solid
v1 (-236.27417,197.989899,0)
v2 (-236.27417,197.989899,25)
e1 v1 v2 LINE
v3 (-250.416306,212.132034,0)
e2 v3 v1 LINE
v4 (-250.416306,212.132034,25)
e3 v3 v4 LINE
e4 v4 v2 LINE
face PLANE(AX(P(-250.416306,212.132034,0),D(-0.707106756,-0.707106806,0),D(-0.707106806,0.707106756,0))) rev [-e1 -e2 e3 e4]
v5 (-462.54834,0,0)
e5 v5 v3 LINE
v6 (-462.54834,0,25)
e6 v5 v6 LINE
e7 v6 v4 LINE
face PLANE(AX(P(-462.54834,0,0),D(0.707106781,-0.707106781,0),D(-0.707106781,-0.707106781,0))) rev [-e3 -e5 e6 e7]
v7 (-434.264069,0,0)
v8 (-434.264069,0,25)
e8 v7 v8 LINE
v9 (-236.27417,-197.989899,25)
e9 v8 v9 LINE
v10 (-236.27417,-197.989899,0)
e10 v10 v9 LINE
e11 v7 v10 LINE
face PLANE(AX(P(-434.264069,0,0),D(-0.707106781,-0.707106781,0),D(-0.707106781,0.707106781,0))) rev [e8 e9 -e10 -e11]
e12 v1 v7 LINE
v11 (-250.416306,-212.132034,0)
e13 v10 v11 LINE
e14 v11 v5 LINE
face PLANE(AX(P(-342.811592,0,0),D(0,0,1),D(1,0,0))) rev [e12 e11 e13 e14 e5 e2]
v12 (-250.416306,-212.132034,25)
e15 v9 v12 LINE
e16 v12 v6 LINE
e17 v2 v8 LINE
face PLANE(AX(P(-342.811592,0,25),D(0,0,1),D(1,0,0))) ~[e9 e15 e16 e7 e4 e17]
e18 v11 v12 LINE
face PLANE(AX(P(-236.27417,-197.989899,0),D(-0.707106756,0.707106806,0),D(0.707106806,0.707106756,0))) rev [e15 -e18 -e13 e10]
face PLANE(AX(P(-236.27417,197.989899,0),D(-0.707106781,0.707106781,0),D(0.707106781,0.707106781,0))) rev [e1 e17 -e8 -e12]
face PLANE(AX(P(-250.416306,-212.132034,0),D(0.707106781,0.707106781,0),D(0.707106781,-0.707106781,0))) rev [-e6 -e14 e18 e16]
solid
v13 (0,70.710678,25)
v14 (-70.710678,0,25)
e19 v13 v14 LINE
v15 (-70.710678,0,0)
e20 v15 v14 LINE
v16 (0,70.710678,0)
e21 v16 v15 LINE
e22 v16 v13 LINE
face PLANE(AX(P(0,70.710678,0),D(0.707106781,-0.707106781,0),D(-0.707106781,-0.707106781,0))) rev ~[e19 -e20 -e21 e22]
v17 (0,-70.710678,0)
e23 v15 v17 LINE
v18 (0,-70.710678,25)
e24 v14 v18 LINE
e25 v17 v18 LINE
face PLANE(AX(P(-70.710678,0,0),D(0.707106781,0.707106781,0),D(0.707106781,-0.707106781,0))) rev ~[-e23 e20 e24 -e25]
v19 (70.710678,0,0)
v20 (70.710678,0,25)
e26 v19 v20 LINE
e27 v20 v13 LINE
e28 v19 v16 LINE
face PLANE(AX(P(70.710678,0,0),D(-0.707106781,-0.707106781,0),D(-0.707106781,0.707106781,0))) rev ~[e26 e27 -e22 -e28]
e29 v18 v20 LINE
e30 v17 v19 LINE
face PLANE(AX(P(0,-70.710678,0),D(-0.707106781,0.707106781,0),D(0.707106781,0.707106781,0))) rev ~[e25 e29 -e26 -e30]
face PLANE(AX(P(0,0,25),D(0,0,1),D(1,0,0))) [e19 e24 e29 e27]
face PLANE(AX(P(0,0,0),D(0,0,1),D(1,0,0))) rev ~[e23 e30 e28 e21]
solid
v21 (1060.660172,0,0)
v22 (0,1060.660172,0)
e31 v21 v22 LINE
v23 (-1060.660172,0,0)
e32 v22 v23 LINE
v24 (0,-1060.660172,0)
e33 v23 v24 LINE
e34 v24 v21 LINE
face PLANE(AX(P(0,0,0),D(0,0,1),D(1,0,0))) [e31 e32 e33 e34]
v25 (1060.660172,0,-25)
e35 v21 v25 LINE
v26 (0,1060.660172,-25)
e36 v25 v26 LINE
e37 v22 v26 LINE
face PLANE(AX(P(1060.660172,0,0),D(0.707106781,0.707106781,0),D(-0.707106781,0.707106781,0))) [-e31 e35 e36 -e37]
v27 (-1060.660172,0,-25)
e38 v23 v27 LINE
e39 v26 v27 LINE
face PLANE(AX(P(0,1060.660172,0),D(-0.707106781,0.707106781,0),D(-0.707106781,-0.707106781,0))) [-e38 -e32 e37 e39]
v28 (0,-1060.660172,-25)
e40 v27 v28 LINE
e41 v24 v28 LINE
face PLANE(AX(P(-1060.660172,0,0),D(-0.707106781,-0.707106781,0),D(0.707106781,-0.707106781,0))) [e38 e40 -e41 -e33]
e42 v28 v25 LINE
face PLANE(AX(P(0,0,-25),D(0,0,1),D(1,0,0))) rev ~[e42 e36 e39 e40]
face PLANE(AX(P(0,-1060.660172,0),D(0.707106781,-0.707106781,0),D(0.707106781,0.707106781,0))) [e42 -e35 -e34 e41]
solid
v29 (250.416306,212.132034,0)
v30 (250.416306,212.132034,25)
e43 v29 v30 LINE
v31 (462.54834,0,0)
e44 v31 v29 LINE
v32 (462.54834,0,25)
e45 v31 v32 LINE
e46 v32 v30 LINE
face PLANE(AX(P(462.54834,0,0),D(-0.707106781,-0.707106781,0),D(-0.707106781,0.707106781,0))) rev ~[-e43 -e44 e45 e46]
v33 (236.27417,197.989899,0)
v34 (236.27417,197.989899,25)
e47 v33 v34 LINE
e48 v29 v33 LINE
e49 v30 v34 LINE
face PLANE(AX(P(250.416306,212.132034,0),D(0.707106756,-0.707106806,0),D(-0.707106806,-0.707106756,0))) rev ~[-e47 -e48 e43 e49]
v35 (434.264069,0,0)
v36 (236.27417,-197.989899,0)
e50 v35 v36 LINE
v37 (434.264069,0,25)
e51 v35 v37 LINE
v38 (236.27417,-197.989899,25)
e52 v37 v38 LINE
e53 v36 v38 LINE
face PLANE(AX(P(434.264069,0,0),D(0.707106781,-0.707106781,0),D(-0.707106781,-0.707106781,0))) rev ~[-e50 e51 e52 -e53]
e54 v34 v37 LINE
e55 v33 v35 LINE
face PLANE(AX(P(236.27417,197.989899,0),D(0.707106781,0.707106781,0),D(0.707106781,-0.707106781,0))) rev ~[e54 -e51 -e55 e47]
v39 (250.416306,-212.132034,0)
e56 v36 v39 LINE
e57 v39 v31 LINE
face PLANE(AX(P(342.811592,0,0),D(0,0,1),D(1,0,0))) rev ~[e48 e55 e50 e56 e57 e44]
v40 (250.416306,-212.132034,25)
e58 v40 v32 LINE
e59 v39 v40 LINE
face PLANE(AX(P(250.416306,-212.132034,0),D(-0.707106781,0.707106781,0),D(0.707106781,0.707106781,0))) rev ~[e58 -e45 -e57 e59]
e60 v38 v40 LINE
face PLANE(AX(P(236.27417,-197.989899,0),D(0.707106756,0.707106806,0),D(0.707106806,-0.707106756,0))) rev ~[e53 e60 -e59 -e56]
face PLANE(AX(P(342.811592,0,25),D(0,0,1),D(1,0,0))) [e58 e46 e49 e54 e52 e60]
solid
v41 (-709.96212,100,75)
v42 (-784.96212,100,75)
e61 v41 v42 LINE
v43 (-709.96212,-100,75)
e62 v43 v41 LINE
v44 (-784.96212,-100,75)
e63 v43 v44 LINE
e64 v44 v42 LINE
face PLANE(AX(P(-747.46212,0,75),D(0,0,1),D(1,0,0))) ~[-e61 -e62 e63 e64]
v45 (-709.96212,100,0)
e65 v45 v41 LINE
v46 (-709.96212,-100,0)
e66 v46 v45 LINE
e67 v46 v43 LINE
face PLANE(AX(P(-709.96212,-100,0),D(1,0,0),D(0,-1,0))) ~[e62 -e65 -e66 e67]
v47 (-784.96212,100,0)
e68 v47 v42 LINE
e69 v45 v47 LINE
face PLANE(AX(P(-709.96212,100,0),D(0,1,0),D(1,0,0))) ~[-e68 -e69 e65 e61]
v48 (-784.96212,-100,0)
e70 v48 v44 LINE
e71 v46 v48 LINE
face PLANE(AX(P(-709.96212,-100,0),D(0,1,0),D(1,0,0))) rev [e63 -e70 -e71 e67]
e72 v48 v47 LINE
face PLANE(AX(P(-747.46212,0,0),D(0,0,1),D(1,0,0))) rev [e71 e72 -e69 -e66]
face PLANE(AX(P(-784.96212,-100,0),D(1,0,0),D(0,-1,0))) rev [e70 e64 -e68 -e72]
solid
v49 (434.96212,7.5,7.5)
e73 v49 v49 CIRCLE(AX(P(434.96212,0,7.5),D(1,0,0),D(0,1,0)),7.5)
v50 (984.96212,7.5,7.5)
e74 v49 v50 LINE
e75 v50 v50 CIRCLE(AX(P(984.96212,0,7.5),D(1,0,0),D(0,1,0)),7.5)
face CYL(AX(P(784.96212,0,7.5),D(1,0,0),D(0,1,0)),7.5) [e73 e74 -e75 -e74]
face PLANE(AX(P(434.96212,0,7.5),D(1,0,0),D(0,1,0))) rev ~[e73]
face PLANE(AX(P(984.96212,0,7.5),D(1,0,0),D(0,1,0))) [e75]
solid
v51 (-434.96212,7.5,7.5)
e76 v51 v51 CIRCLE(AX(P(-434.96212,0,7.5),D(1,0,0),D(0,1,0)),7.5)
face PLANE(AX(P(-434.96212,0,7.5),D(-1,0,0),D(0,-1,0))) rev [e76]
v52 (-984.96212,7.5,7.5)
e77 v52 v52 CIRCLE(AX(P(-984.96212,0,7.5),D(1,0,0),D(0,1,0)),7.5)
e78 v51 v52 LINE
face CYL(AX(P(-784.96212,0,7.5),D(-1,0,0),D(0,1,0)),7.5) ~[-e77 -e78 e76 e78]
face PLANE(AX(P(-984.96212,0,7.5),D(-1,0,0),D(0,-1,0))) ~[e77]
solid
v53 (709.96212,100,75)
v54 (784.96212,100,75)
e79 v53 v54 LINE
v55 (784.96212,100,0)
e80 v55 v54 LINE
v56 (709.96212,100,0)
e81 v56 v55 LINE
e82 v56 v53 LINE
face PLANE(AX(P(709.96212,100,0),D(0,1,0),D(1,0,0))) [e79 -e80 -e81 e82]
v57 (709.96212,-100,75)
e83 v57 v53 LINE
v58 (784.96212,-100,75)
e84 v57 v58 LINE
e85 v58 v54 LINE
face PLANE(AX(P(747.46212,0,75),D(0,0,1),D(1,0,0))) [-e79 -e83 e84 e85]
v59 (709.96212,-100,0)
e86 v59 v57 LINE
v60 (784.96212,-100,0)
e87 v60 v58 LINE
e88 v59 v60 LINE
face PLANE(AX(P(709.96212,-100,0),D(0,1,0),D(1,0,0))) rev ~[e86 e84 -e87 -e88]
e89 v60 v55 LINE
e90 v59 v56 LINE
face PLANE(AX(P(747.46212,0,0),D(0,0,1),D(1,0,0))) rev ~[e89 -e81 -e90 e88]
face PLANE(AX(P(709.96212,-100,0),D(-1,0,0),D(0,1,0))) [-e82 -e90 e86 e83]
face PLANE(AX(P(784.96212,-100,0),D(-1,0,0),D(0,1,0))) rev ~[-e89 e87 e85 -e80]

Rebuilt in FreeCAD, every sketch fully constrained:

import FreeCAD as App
import Part
import Sketcher
from FreeCAD import Vector

doc = App.newDocument("Part")
params = doc.addObject("Spreadsheet::Sheet", "Params")
for row, (alias, value) in enumerate([
    ("sketch1_length", "1500 mm"),
    ("pad1_length", "25 mm"),
    ("sketch2_width", "75 mm"),
    ("sketch2_height", "200 mm"),
    ("pad2_length", "75 mm"),
    ("sketch3_length", "20 mm"),
    ("sketch3_length2", "299.999999 mm"),
    ("pad3_length", "25 mm"),
    ("sketch4_diameter", "15 mm"),
    ("pad4_length", "200 mm"),
    ("pad4_length2", "350 mm"),
    ("sketch5_length", "100 mm"),
    ("pad5_length", "25 mm"),
], start=1):
    params.set(f"A{row}", alias)
    params.set(f"B{row}", "=" + value)
    params.setAlias(f"B{row}", alias)

body = doc.addObject("PartDesign::Body", "Body")

# Sketch on XY plane
sketch1 = doc.addObject("Sketcher::SketchObject", "Sketch")
body.addObject(sketch1)
sketch1.AttachmentSupport = (doc.XY_Plane, [""])
sketch1.MapMode = "FlatFace"
sketch1.addGeometry([
    Part.LineSegment(Vector(0, 1061, 0), Vector(-1061, 0, 0)),
    Part.LineSegment(Vector(-1061, 0, 0), Vector(0, -1061, 0)),
    Part.LineSegment(Vector(0, -1061, 0), Vector(1061, 0, 0)),
    Part.LineSegment(Vector(1061, 0, 0), Vector(0, 1061, 0)),
], False)
sketch1.addConstraint([
    Sketcher.Constraint("Coincident", 0, 2, 1, 1),
    Sketcher.Constraint("Coincident", 1, 2, 2, 1),
    Sketcher.Constraint("Coincident", 2, 2, 3, 1),
    Sketcher.Constraint("Coincident", 3, 2, 0, 1),
    Sketcher.Constraint("Symmetric", 0, 2, 2, 2, -1, 1),
    Sketcher.Constraint("Symmetric", 1, 2, 3, 2, -1, 1),
    Sketcher.Constraint("PointOnObject", 0, 2, -1),
    Sketcher.Constraint("PointOnObject", 1, 2, -2),
    Sketcher.Constraint("Perpendicular", 0, 1),
    Sketcher.Constraint("Distance", 0, 1500.0),
])
sketch1.setExpression("Constraints[9]", "Params.sketch1_length")
pad1 = doc.addObject("PartDesign::Pad", "Pad")
body.addObject(pad1)
pad1.Profile = sketch1
pad1.setExpression("Length", "Params.pad1_length")
pad1.Reversed = True
body2 = doc.addObject("PartDesign::Body", "Body001")

# Sketch on XY plane
sketch2 = doc.addObject("Sketcher::SketchObject", "Sketch001")
body2.addObject(sketch2)
sketch2.AttachmentSupport = (doc.getObject("XY_Plane001"), [""])
sketch2.MapMode = "FlatFace"
sketch2.addGeometry([
    Part.LineSegment(Vector(710, 100, 0), Vector(710, -100, 0)),
    Part.LineSegment(Vector(710, -100, 0), Vector(785, -100, 0)),
    Part.LineSegment(Vector(785, -100, 0), Vector(785, 100, 0)),
    Part.LineSegment(Vector(785, 100, 0), Vector(710, 100, 0)),
], False)
sketch2.addConstraint([
    Sketcher.Constraint("Coincident", 0, 2, 1, 1),
    Sketcher.Constraint("Coincident", 1, 2, 2, 1),
    Sketcher.Constraint("Coincident", 2, 2, 3, 1),
    Sketcher.Constraint("Coincident", 3, 2, 0, 1),
    Sketcher.Constraint("Vertical", 0),
    Sketcher.Constraint("Horizontal", 1),
    Sketcher.Constraint("Vertical", 2),
    Sketcher.Constraint("Horizontal", 3),
    Sketcher.Constraint("DistanceX", 1, 1, 1, 2, 75.0),
    Sketcher.Constraint("DistanceY", 0, 2, 0, 1, 200.0),
    Sketcher.Constraint("DistanceY", 0, 2, -1, 1, 100.0),
    Sketcher.Constraint("DistanceX", -1, 1, 0, 2, 709.96212),
])
sketch2.setExpression("Constraints[8]", "Params.sketch2_width")
sketch2.setExpression("Constraints[9]", "Params.sketch2_height")
pad2 = doc.addObject("PartDesign::Pad", "Pad001")
body2.addObject(pad2)
pad2.Profile = sketch2
pad2.setExpression("Length", "Params.pad2_length")
body3 = doc.addObject("PartDesign::Body", "Body002")

# Sketch on XY plane
sketch3 = doc.addObject("Sketcher::SketchObject", "Sketch002")
body3.addObject(sketch3)
sketch3.AttachmentSupport = (doc.getObject("XY_Plane002"), [""])
sketch3.MapMode = "FlatFace"
sketch3.addGeometry([
    Part.LineSegment(Vector(236, -198, 0), Vector(250, -212, 0)),  # 0
    Part.LineSegment(Vector(250, -212, 0), Vector(463, 0, 0)),  # 1
    Part.LineSegment(Vector(463, 0, 0), Vector(250, 212, 0)),  # 2
    Part.LineSegment(Vector(250, 212, 0), Vector(236, 198, 0)),  # 3
    Part.LineSegment(Vector(236, 198, 0), Vector(434, 0, 0)),  # 4
    Part.LineSegment(Vector(434, 0, 0), Vector(236, -198, 0)),  # 5
], False)
sketch3.addConstraint([
    Sketcher.Constraint("Coincident", 0, 2, 1, 1),
    Sketcher.Constraint("Coincident", 1, 2, 2, 1),
    Sketcher.Constraint("Coincident", 2, 2, 3, 1),
    Sketcher.Constraint("Coincident", 3, 2, 4, 1),
    Sketcher.Constraint("Coincident", 4, 2, 5, 1),
    Sketcher.Constraint("Coincident", 5, 2, 0, 1),
    Sketcher.Constraint("Symmetric", 0, 2, 2, 2, -1),
    Sketcher.Constraint("Symmetric", 3, 2, 5, 2, -1),
    Sketcher.Constraint("PointOnObject", 1, 2, -1),
    Sketcher.Constraint("PointOnObject", 4, 2, -1),
    Sketcher.Constraint("Perpendicular", 0, 1),
    Sketcher.Constraint("Perpendicular", 1, 2),
    Sketcher.Constraint("Perpendicular", 3, 4),
    Sketcher.Constraint("Distance", 0, 20.0),
    Sketcher.Constraint("Distance", 1, 299.999999),
    Sketcher.Constraint("DistanceX", -1, 1, 1, 2, 462.54834),
])
sketch3.setExpression("Constraints[13]", "Params.sketch3_length")
sketch3.setExpression("Constraints[14]", "Params.sketch3_length2")
pad3 = doc.addObject("PartDesign::Pad", "Pad002")
body3.addObject(pad3)
pad3.Profile = sketch3
pad3.setExpression("Length", "Params.pad3_length")
body4 = doc.addObject("PartDesign::Body", "Body003")

# Sketch on YZ plane
sketch4 = doc.addObject("Sketcher::SketchObject", "Sketch003")
body4.addObject(sketch4)
sketch4.AttachmentSupport = (doc.getObject("YZ_Plane003"), [""])
sketch4.MapMode = "FlatFace"
sketch4.AttachmentOffset = App.Placement(Vector(0, 0, 784.96212), App.Rotation())
sketch4.addGeometry(Part.Circle(Vector(0, 8, 0), Vector(0, 0, 1), 8), False)
sketch4.addConstraint([
    Sketcher.Constraint("PointOnObject", 0, 3, -2),
    Sketcher.Constraint("Diameter", 0, 15.0),
    Sketcher.Constraint("DistanceY", -1, 1, 0, 3, 7.5),
])
sketch4.setExpression("Constraints[1]", "Params.sketch4_diameter")
pad4 = doc.addObject("PartDesign::Pad", "Pad003")
body4.addObject(pad4)
pad4.Profile = sketch4
pad4.Type = "TwoLengths"
pad4.setExpression("Length", "Params.pad4_length")
pad4.setExpression("Length2", "Params.pad4_length2")
body5 = doc.addObject("PartDesign::Body", "Body004")

# Sketch on XY plane
sketch5 = doc.addObject("Sketcher::SketchObject", "Sketch004")
body5.addObject(sketch5)
sketch5.AttachmentSupport = (doc.getObject("XY_Plane004"), [""])
sketch5.MapMode = "FlatFace"
sketch5.addGeometry([
    Part.LineSegment(Vector(0, 71, 0), Vector(-71, 0, 0)),
    Part.LineSegment(Vector(-71, 0, 0), Vector(0, -71, 0)),
    Part.LineSegment(Vector(0, -71, 0), Vector(71, 0, 0)),
    Part.LineSegment(Vector(71, 0, 0), Vector(0, 71, 0)),
], False)
sketch5.addConstraint([
    Sketcher.Constraint("Coincident", 0, 2, 1, 1),
    Sketcher.Constraint("Coincident", 1, 2, 2, 1),
    Sketcher.Constraint("Coincident", 2, 2, 3, 1),
    Sketcher.Constraint("Coincident", 3, 2, 0, 1),
    Sketcher.Constraint("Symmetric", 0, 2, 2, 2, -1, 1),
    Sketcher.Constraint("Symmetric", 1, 2, 3, 2, -1, 1),
    Sketcher.Constraint("PointOnObject", 0, 2, -1),
    Sketcher.Constraint("PointOnObject", 1, 2, -2),
    Sketcher.Constraint("Perpendicular", 0, 1),
    Sketcher.Constraint("Distance", 0, 100.0),
])
sketch5.setExpression("Constraints[9]", "Params.sketch5_length")
pad5 = doc.addObject("PartDesign::Pad", "Pad004")
body5.addObject(pad5)
pad5.Profile = sketch5
pad5.setExpression("Length", "Params.pad5_length")
body6 = doc.addObject("PartDesign::Body", "Body005")
doc.recompute()

mirroring = doc.addObject("Part::Mirroring", "Mirroring")
mirroring.Source = body3
mirroring.Base = Vector(0, 0, 0)
mirroring.Normal = Vector(1, 0, 0)
body6.BaseFeature = mirroring
doc.recompute()
body7 = doc.addObject("PartDesign::Body", "Body006")
doc.recompute()

mirroring2 = doc.addObject("Part::Mirroring", "Mirroring001")
mirroring2.Source = body4
mirroring2.Base = Vector(0, 0, 0)
mirroring2.Normal = Vector(1, 0, 0)
body7.BaseFeature = mirroring2
doc.recompute()
body8 = doc.addObject("PartDesign::Body", "Body007")
doc.recompute()

mirroring3 = doc.addObject("Part::Mirroring", "Mirroring002")
mirroring3.Source = body2
mirroring3.Base = Vector(0, 0, 0)
mirroring3.Normal = Vector(1, 0, 0)
body8.BaseFeature = mirroring3
doc.recompute()
mirroring.Visibility = False
mirroring2.Visibility = False
mirroring3.Visibility = False

doc.recompute()
